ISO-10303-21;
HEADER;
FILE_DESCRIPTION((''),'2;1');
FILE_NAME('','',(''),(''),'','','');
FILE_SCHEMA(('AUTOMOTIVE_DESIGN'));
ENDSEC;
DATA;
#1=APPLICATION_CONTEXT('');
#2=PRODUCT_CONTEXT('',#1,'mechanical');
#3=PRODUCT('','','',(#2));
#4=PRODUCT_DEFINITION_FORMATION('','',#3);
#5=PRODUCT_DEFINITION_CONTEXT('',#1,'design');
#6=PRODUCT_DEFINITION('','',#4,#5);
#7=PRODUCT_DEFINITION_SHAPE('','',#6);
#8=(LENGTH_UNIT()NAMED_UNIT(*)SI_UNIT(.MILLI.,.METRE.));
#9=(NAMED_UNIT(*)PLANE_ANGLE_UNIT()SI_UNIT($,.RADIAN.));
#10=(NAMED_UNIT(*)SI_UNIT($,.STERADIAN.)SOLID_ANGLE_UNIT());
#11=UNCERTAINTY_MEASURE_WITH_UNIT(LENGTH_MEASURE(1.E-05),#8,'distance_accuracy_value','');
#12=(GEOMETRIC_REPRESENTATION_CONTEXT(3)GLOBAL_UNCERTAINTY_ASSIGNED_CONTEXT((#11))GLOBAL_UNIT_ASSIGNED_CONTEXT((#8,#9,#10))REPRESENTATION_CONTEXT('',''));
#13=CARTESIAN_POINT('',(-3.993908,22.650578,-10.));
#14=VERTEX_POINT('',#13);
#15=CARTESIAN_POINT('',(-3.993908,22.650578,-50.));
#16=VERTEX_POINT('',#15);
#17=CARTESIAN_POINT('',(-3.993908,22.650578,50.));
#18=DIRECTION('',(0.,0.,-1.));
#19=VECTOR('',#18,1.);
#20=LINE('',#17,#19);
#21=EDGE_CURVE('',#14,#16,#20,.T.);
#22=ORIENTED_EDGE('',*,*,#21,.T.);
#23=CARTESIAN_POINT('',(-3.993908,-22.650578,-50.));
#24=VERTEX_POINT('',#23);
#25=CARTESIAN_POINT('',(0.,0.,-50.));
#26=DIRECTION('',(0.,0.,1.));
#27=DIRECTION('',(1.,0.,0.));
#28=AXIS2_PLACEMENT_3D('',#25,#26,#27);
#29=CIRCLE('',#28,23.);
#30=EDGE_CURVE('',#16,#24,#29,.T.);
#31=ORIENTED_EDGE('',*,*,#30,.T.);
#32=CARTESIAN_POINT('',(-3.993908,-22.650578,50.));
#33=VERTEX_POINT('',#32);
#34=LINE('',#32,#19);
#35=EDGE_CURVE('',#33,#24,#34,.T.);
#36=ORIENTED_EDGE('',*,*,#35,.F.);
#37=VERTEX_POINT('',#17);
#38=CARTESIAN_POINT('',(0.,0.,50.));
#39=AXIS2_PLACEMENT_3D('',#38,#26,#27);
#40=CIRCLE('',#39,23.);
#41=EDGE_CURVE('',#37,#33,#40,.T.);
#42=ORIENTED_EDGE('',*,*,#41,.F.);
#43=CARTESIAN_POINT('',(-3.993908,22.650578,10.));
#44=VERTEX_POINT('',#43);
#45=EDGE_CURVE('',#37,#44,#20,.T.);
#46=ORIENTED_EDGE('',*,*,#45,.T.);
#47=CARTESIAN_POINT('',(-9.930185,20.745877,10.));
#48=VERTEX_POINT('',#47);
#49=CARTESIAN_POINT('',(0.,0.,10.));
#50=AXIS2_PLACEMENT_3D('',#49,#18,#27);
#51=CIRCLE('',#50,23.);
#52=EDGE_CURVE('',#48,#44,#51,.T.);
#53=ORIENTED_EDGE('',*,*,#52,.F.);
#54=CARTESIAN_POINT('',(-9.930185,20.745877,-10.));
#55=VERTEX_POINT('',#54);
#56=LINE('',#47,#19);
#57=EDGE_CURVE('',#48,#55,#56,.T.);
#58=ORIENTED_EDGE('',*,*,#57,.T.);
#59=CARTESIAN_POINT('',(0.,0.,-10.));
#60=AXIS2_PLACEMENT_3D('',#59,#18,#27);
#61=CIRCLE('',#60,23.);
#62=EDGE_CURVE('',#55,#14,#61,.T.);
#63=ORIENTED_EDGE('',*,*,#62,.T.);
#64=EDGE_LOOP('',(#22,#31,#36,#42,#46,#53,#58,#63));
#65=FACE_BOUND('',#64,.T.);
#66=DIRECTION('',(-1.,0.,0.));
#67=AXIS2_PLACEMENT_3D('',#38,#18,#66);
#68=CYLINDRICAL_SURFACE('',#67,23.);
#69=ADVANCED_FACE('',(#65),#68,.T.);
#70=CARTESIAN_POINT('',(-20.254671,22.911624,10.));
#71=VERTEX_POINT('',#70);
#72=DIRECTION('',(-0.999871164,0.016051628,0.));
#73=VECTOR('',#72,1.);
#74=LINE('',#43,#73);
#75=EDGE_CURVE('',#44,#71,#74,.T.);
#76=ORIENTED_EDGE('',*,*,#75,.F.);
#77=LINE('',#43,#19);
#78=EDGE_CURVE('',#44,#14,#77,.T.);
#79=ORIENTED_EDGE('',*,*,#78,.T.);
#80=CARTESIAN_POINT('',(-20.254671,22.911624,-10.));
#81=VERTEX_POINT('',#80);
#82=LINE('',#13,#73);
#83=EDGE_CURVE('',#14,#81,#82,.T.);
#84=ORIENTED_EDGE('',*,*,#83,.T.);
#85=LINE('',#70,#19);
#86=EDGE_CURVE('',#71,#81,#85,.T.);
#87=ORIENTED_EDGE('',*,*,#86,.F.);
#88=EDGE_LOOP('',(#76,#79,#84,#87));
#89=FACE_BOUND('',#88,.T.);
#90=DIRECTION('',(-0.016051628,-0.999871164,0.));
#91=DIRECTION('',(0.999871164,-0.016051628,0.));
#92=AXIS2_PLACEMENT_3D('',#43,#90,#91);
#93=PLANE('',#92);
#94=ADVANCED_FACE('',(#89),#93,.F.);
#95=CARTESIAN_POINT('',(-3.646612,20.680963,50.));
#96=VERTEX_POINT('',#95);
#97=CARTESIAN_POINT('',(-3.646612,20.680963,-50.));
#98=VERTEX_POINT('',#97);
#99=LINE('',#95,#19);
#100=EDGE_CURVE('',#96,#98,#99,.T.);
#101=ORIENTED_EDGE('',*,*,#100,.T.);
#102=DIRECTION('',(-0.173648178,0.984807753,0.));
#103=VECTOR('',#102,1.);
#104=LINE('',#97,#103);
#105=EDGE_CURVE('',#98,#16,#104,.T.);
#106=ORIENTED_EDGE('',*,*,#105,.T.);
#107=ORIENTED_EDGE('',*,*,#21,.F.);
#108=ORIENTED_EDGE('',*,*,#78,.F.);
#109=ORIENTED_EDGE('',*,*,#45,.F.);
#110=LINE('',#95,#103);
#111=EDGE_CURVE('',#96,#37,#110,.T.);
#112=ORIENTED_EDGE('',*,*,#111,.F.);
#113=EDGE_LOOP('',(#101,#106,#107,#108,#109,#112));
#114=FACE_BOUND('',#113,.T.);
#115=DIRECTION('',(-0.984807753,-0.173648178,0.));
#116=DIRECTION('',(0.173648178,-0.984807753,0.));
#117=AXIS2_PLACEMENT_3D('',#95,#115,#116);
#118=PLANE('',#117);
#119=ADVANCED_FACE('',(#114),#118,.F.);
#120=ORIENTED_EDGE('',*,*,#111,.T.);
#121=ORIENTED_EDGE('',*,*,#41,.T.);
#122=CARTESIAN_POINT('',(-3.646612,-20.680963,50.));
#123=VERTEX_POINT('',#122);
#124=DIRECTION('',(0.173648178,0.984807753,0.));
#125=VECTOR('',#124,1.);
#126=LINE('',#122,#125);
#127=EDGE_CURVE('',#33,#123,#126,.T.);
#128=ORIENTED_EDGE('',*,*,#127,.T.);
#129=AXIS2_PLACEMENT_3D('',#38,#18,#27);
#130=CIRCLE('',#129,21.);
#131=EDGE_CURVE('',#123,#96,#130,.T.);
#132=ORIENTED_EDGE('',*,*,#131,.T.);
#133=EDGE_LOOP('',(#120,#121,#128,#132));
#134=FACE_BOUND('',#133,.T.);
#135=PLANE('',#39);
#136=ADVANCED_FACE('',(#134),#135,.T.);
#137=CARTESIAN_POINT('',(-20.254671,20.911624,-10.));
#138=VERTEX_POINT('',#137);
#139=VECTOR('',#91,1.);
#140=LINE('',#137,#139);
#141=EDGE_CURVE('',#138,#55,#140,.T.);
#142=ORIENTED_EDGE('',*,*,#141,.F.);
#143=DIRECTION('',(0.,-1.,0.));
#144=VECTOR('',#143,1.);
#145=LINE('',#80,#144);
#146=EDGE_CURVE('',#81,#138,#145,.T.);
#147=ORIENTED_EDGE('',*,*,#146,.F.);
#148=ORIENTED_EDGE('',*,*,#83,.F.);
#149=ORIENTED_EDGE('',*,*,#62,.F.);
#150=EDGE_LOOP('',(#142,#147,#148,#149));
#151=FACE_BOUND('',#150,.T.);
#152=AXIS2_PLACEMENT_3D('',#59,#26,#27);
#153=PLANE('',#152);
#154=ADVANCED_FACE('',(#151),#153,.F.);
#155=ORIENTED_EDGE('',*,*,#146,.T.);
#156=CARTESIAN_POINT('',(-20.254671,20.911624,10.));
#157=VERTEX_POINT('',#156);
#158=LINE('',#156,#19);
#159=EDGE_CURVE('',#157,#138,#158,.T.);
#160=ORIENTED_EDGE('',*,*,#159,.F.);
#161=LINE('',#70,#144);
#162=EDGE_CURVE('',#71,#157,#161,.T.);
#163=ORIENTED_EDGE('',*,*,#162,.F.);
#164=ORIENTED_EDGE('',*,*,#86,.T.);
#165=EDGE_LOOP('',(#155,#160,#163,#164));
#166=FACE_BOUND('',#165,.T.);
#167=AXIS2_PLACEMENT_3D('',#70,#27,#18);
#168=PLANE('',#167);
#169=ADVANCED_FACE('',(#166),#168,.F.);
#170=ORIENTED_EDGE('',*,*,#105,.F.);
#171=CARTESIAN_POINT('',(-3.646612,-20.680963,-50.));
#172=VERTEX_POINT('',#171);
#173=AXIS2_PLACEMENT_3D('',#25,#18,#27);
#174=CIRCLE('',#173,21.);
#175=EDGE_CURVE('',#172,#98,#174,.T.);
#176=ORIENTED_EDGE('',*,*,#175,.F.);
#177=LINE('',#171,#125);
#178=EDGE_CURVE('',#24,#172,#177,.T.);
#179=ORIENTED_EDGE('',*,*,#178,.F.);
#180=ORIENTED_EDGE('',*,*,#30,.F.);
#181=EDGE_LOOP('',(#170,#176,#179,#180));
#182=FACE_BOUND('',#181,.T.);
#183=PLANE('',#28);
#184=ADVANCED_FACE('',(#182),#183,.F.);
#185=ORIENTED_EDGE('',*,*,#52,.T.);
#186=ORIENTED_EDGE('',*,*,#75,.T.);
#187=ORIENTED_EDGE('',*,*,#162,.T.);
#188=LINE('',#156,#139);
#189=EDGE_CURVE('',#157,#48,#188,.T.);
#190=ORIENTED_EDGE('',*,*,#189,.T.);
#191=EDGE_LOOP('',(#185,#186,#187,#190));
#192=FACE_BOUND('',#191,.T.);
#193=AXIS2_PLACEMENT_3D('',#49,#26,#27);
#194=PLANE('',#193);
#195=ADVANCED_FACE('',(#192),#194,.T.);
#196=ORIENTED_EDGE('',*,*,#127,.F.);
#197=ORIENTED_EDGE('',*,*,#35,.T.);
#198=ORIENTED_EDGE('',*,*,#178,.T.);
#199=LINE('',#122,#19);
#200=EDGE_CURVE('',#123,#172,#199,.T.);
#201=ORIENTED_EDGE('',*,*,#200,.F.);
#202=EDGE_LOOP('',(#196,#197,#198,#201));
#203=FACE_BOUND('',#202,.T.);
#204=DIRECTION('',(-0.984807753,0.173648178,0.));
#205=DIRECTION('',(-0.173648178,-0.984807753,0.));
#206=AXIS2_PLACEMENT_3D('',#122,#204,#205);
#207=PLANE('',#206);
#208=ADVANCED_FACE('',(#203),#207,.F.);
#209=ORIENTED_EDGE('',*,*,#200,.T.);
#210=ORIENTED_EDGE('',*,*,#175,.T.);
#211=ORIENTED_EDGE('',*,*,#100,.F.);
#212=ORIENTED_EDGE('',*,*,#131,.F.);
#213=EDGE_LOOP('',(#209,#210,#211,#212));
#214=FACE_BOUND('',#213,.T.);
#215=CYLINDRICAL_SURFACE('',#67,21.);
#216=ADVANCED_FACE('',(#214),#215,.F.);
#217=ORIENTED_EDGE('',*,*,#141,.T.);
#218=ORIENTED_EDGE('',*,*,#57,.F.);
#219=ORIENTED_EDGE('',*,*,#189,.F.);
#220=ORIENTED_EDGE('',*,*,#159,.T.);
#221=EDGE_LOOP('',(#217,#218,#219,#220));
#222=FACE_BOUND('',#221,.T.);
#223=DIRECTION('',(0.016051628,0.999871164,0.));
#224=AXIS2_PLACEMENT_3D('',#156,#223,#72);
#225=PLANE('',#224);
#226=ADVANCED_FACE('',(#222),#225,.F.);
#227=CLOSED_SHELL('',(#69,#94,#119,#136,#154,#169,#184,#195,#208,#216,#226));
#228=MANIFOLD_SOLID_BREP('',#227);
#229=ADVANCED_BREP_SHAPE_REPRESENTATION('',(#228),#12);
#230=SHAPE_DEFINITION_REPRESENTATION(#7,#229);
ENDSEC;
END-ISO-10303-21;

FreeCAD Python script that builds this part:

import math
import FreeCAD as App
import Part
import Sketcher

V = App.Vector
Q = App.Units.Quantity

doc = App.newDocument("Part")
body = doc.addObject("PartDesign::Body", "Body")

# Sketch on XY plane
sketch1 = doc.addObject("Sketcher::SketchObject", "Sketch")
body.addObject(sketch1)
sketch1.AttachmentSupport = (doc.XY_Plane, [""])
sketch1.MapMode = "FlatFace"
sketch1.addGeometry(Part.LineSegment(V(-3.6, 20.7, 0), V(-4, 22.7, 0)), False)
sketch1.addGeometry(Part.ArcOfCircle(Part.Circle(V(0, 0, 0), V(0, 0, 1), 23), math.radians(100), math.radians(260)), False)
sketch1.addGeometry(Part.LineSegment(V(-4, -22.7, 0), V(-3.6, -20.7, 0)), False)
sketch1.addGeometry(Part.ArcOfCircle(Part.Circle(V(0, 0, 0), V(0, 0, 1), 21), math.radians(100), math.radians(260)), False)
sketch1.addConstraint(Sketcher.Constraint("Coincident", 0, 2, 1, 1))
sketch1.addConstraint(Sketcher.Constraint("Coincident", 1, 2, 2, 1))
sketch1.addConstraint(Sketcher.Constraint("Coincident", 2, 2, 3, 2))
sketch1.addConstraint(Sketcher.Constraint("Coincident", 3, 1, 0, 1))
sketch1.addConstraint(Sketcher.Constraint("Coincident", 1, 3, -1, 1))
sketch1.addConstraint(Sketcher.Constraint("Coincident", 3, 3, -1, 1))
sketch1.addConstraint(Sketcher.Constraint("Vertical", 0, 2, 1, 2))
sketch1.addConstraint(Sketcher.Constraint("Vertical", 2, 2, 3, 1))
sketch1.addConstraint(Sketcher.Constraint("Radius", 1, Q("23 mm")))
sketch1.addConstraint(Sketcher.Constraint("Radius", 3, Q("21 mm")))
sketch1.addConstraint(Sketcher.Constraint("Angle", 0, Q("100 deg")))
sketch1.addConstraint(Sketcher.Constraint("DistanceX", 0, 2, -1, 1, Q("3.993908 mm")))
pad1 = doc.addObject("PartDesign::Pad", "Pad")
body.addObject(pad1)
pad1.Profile = sketch1
pad1.Length = 100
pad1.Midplane = True

# Sketch on XY plane
sketch2 = doc.addObject("Sketcher::SketchObject", "Sketch001")
body.addObject(sketch2)
sketch2.AttachmentSupport = (doc.XY_Plane, [""])
sketch2.MapMode = "FlatFace"
sketch2.addGeometry(Part.LineSegment(V(-4, 22.7, 0), V(-20.3, 22.9, 0)), False)
sketch2.addGeometry(Part.LineSegment(V(-20.3, 22.9, 0), V(-20.3, 20.9, 0)), False)
sketch2.addGeometry(Part.LineSegment(V(-20.3, 20.9, 0), V(-9.9, 20.7, 0)), False)
sketch2.addGeometry(Part.ArcOfCircle(Part.Circle(V(0, 0, 0), V(0, 0, 1), 23), math.radians(100), math.radians(115.58)), False)
sketch2.addConstraint(Sketcher.Constraint("Coincident", 0, 2, 1, 1))
sketch2.addConstraint(Sketcher.Constraint("Coincident", 1, 2, 2, 1))
sketch2.addConstraint(Sketcher.Constraint("Coincident", 2, 2, 3, 2))
sketch2.addConstraint(Sketcher.Constraint("Coincident", 3, 1, 0, 1))
sketch2.addConstraint(Sketcher.Constraint("Vertical", 1))
sketch2.addConstraint(Sketcher.Constraint("Coincident", 3, 3, -1, 1))
sketch2.addConstraint(Sketcher.Constraint("Parallel", 0, 2))
sketch2.addConstraint(Sketcher.Constraint("Radius", 3, Q("23 mm")))
sketch2.addConstraint(Sketcher.Constraint("DistanceY", 1, 2, 1, 1, Q("2 mm")))
sketch2.addConstraint(Sketcher.Constraint("DistanceY", 2, 2, 3, 1, Q("1.904701 mm")))
sketch2.addConstraint(Sketcher.Constraint("Distance", 0, Q("16.262859 mm")))
sketch2.addConstraint(Sketcher.Constraint("DistanceX", 0, 2, -1, 1, Q("20.254671 mm")))
pad2 = doc.addObject("PartDesign::Pad", "Pad001")
body.addObject(pad2)
pad2.Profile = sketch2
pad2.Length = 20
pad2.Midplane = True

doc.recompute()
